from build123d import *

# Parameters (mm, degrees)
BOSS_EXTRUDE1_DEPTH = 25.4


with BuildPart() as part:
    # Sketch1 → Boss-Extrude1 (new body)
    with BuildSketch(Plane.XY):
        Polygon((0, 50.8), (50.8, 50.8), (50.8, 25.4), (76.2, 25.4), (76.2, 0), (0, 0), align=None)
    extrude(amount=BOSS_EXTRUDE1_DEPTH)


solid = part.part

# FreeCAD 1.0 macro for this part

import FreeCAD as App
import Part
import Sketcher

V = App.Vector
Q = App.Units.Quantity


def add_polygon(sketch, points):
    """Adds a closed chain of lines whose ends are joined by coincident constraints."""
    first, n = sketch.GeometryCount, len(points)
    for a, b in zip(points, points[1:] + points[:1]):
        sketch.addGeometry(Part.LineSegment(App.Vector(*a, 0), App.Vector(*b, 0)), False)
    for i in range(n):
        sketch.addConstraint(Sketcher.Constraint("Coincident", first + i, 2, first + (i + 1) % n, 1))

doc = App.newDocument("Part")
body = doc.addObject("PartDesign::Body", "Body")

# Sketch on XY plane
sketch1 = doc.addObject("Sketcher::SketchObject", "Sketch")
body.addObject(sketch1)
sketch1.AttachmentSupport = (doc.XY_Plane, [""])
sketch1.MapMode = "FlatFace"
add_polygon(sketch1, [(51, 51), (0, 51), (0, 0), (76, 0), (76, 25), (51, 25)])  # lines 0-5
sketch1.addConstraint([
    Sketcher.Constraint("Horizontal", 0),
    Sketcher.Constraint("Vertical", 1),
    Sketcher.Constraint("Horizontal", 2),
    Sketcher.Constraint("Vertical", 3),
    Sketcher.Constraint("Horizontal", 4),
    Sketcher.Constraint("Vertical", 5),
    Sketcher.Constraint("Coincident", 1, 2, -1, 1),
    Sketcher.Constraint("Equal", 0, 1),
    Sketcher.Constraint("Equal", 4, 3),
    Sketcher.Constraint("Equal", 3, 5),
    Sketcher.Constraint("DistanceX", 0, 2, 0, 1, Q("2 in")),
])
pad1 = doc.addObject("PartDesign::Pad", "Pad")
body.addObject(pad1)
pad1.Profile = sketch1
pad1.Length = Q("1 in")

doc.recompute()
